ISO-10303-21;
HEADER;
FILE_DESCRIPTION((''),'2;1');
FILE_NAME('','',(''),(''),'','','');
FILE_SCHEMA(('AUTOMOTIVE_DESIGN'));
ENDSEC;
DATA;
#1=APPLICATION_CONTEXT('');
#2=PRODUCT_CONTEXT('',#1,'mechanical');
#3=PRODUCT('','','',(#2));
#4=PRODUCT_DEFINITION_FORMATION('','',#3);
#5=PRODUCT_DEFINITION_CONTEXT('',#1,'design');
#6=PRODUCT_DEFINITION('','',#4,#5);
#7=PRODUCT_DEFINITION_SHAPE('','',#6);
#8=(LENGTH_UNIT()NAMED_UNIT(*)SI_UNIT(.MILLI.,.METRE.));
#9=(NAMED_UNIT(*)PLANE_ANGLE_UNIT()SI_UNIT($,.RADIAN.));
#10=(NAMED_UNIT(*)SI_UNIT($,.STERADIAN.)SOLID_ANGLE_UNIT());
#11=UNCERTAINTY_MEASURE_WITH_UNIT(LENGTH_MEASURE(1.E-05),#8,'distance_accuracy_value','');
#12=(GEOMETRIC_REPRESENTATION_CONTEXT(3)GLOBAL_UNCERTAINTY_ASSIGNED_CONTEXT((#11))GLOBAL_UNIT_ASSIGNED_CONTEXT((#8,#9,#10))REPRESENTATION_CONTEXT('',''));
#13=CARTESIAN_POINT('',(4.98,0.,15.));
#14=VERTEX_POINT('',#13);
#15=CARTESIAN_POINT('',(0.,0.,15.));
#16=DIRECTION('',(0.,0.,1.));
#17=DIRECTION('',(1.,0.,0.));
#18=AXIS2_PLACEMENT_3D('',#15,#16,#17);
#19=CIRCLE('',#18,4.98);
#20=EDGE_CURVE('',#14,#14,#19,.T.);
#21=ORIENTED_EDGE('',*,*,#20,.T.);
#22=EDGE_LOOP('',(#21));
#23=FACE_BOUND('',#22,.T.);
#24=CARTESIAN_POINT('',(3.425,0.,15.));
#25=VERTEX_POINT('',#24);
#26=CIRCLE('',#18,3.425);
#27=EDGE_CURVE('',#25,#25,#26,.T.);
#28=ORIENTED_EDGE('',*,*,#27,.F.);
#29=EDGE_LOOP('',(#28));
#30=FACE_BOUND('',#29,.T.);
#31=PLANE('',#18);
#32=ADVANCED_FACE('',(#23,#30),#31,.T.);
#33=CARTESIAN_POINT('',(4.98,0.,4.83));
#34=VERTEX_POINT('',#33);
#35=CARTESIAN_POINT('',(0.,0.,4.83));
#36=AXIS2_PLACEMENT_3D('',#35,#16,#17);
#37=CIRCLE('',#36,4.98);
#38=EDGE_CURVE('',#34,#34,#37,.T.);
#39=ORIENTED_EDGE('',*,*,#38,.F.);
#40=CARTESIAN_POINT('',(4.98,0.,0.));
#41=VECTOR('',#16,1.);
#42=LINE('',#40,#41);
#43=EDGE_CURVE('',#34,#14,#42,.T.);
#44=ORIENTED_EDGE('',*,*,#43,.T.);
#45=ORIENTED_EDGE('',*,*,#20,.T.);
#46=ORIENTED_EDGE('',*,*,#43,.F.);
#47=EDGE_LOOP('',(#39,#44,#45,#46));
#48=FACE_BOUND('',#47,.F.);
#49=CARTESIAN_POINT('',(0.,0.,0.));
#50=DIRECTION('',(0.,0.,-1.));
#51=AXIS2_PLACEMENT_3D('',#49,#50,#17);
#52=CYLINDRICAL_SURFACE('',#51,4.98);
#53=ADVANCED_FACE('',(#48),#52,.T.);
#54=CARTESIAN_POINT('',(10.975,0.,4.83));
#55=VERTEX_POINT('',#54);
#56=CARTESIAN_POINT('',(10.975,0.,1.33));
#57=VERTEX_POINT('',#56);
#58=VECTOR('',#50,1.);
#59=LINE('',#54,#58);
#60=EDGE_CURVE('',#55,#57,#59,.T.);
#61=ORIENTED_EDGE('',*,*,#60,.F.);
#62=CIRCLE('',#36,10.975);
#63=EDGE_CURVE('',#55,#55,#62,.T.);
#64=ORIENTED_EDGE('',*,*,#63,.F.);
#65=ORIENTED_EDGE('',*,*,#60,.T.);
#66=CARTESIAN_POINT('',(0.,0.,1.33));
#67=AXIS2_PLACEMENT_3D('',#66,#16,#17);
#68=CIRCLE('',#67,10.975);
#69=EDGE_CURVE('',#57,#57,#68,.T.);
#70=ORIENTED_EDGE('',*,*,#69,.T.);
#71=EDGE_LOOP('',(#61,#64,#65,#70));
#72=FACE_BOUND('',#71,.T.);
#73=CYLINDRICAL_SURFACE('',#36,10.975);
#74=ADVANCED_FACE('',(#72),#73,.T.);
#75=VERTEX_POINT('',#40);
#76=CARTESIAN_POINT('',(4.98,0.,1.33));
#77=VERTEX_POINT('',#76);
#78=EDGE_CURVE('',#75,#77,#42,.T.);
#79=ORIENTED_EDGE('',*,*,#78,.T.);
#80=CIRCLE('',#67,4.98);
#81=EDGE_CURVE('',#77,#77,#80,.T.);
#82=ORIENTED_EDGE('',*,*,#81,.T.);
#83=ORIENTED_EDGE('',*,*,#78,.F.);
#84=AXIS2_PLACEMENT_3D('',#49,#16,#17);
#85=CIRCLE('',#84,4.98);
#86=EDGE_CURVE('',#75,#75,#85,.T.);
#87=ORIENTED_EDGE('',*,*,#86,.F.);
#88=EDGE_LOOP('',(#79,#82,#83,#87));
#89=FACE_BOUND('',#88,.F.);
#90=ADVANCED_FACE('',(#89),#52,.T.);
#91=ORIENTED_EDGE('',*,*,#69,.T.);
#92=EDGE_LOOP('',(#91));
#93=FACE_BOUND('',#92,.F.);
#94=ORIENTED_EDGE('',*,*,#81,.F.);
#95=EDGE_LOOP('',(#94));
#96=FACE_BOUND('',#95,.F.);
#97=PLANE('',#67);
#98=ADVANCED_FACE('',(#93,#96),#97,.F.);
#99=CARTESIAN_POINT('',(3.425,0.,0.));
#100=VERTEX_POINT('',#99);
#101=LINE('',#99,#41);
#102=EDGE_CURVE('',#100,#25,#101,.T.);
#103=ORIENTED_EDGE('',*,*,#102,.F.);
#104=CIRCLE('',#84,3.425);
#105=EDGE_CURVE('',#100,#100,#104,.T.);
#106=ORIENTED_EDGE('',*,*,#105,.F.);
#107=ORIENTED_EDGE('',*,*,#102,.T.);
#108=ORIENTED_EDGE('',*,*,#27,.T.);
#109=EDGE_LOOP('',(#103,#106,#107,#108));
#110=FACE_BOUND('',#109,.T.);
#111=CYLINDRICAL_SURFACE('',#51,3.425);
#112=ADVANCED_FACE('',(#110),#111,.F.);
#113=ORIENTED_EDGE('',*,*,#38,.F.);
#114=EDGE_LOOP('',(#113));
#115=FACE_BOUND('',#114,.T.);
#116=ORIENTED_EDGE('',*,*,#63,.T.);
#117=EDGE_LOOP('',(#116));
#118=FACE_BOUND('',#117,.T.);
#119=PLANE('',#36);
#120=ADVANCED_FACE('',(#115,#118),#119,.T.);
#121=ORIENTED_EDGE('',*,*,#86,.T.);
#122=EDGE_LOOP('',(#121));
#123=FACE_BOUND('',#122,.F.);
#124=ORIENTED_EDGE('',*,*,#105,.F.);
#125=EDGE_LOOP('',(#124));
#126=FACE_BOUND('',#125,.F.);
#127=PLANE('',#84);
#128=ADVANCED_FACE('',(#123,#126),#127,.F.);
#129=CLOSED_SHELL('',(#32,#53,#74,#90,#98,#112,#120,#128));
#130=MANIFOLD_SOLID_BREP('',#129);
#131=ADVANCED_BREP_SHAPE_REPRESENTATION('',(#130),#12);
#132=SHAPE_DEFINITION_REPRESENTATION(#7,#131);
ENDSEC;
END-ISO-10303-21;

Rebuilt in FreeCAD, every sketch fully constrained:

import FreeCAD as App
import Part
import Sketcher
Q = App.Units.Quantity

doc = App.newDocument("Part")
body = doc.addObject("PartDesign::Body", "Body")

sketch1 = doc.addObject("Sketcher::SketchObject", "Sketch")
body.addObject(sketch1)
sketch1.AttachmentSupport = (doc.XY_Plane, [""])
sketch1.MapMode = "FlatFace"
sketch1.addGeometry(Part.Circle(App.Vector(0, 0, 0), App.Vector(0, 0, 1), 5), False)
sketch1.addGeometry(Part.Circle(App.Vector(0, 0, 0), App.Vector(0, 0, 1), 3.4), False)
sketch1.addConstraint(Sketcher.Constraint("Coincident", 0, 3, -1, 1))
sketch1.addConstraint(Sketcher.Constraint("Coincident", 1, 3, -1, 1))
sketch1.addConstraint(Sketcher.Constraint("Diameter", 0, Q("9.96 mm")))
sketch1.addConstraint(Sketcher.Constraint("Diameter", 1, Q("6.85 mm")))
pad1 = doc.addObject("PartDesign::Pad", "Pad")
body.addObject(pad1)
pad1.Profile = sketch1
pad1.Length = 15

sketch2 = doc.addObject("Sketcher::SketchObject", "Sketch001")
body.addObject(sketch2)
sketch2.AttachmentSupport = (doc.XY_Plane, [""])
sketch2.MapMode = "FlatFace"
sketch2.AttachmentOffset = App.Placement(App.Vector(0, 0, 4.83), App.Rotation())
sketch2.addGeometry(Part.Circle(App.Vector(0, 0, 0), App.Vector(0, 0, 1), 11), False)
sketch2.addGeometry(Part.Circle(App.Vector(0, 0, 0), App.Vector(0, 0, 1), 5), False)
sketch2.addConstraint(Sketcher.Constraint("Coincident", 0, 3, -1, 1))
sketch2.addConstraint(Sketcher.Constraint("Coincident", 1, 3, -1, 1))
sketch2.addConstraint(Sketcher.Constraint("Diameter", 0, Q("21.95 mm")))
sketch2.addConstraint(Sketcher.Constraint("Diameter", 1, Q("9.96 mm")))
pad2 = doc.addObject("PartDesign::Pad", "Pad001")
body.addObject(pad2)
pad2.Profile = sketch2
pad2.Length = 3.5
pad2.Reversed = True

doc.recompute()
